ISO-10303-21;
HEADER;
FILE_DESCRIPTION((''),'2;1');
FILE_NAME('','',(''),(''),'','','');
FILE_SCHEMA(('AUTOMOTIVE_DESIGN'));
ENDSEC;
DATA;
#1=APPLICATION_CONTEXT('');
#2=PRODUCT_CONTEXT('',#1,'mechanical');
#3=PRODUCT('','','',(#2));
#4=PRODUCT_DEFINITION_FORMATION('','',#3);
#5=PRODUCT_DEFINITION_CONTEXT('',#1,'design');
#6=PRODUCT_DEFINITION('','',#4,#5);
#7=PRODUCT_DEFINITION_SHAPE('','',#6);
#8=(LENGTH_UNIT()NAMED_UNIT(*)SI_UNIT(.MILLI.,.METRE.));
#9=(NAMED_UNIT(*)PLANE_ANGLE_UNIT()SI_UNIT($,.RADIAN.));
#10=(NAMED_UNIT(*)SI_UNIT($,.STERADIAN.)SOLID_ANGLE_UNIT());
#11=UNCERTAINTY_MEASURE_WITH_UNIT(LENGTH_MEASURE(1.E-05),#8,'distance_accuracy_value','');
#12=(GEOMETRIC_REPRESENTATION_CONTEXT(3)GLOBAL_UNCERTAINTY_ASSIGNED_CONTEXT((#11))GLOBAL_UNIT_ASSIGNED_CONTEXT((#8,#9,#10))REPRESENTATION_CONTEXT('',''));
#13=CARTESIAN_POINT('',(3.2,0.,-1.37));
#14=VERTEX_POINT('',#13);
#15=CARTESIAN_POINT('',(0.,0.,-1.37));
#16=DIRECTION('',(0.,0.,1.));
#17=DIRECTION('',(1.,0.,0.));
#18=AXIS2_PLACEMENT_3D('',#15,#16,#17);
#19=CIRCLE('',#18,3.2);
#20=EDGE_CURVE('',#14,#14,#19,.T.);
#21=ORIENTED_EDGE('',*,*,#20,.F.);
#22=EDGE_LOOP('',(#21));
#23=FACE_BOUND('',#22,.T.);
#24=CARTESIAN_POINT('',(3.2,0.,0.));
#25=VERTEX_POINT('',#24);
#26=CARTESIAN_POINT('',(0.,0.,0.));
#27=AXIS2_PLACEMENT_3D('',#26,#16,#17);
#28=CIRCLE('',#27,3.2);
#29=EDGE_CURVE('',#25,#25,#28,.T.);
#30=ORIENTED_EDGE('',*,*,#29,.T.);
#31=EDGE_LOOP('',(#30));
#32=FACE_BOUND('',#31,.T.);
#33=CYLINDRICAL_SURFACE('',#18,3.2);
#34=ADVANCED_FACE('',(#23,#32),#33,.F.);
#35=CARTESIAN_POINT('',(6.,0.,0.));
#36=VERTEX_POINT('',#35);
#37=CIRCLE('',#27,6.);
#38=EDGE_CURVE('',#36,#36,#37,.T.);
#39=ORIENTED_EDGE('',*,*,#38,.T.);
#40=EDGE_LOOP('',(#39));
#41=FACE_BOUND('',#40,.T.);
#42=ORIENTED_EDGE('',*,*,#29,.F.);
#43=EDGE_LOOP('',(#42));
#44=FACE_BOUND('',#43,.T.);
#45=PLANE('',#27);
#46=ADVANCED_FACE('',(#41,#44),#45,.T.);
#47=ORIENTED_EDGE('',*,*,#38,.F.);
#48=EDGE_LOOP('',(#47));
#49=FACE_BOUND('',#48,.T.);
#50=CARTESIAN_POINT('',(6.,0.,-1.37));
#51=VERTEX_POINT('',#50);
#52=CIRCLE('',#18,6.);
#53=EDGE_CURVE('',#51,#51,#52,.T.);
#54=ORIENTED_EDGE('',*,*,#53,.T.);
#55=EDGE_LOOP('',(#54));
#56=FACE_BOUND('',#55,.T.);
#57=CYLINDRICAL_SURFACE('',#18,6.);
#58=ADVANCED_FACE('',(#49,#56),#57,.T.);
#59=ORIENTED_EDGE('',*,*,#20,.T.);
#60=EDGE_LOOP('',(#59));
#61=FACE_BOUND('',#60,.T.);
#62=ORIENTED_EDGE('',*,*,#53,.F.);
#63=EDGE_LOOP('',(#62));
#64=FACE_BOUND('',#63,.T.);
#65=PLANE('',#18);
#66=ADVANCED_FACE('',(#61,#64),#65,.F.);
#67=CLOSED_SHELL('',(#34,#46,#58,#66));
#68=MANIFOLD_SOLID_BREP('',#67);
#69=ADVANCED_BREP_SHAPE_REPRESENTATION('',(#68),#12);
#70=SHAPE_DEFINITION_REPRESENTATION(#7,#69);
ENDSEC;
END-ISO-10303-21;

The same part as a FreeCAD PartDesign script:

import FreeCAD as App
import Part
import Sketcher

V = App.Vector

doc = App.newDocument("Part")
params = doc.addObject("Spreadsheet::Sheet", "Params")
for row, (alias, value) in enumerate([
    ("sketch1_diameter", "12 mm"),
    ("sketch1_diameter2", "6.4 mm"),
    ("pad1_length", "1.37 mm"),
], start=1):
    params.set(f"A{row}", alias)
    params.set(f"B{row}", "=" + value)
    params.setAlias(f"B{row}", alias)

body = doc.addObject("PartDesign::Body", "Body")

# Sketch on XY plane
sketch1 = doc.addObject("Sketcher::SketchObject", "Sketch")
body.addObject(sketch1)
sketch1.AttachmentSupport = (doc.XY_Plane, [""])
sketch1.MapMode = "FlatFace"
sketch1.addGeometry(Part.Circle(V(0, 0, 0), V(0, 0, 1), 6), False)
sketch1.addGeometry(Part.Circle(V(0, 0, 0), V(0, 0, 1), 3.2), False)
sketch1.addConstraint(Sketcher.Constraint("Coincident", 0, 3, -1, 1))
sketch1.addConstraint(Sketcher.Constraint("Coincident", 1, 3, -1, 1))
sketch1.addConstraint(Sketcher.Constraint("Diameter", 0, 12.0))
sketch1.addConstraint(Sketcher.Constraint("Diameter", 1, 6.4))
sketch1.setExpression("Constraints[2]", "Params.sketch1_diameter")
sketch1.setExpression("Constraints[3]", "Params.sketch1_diameter2")
pad1 = doc.addObject("PartDesign::Pad", "Pad")
body.addObject(pad1)
pad1.Profile = sketch1
pad1.setExpression("Length", "Params.pad1_length")
pad1.Reversed = True

doc.recompute()
